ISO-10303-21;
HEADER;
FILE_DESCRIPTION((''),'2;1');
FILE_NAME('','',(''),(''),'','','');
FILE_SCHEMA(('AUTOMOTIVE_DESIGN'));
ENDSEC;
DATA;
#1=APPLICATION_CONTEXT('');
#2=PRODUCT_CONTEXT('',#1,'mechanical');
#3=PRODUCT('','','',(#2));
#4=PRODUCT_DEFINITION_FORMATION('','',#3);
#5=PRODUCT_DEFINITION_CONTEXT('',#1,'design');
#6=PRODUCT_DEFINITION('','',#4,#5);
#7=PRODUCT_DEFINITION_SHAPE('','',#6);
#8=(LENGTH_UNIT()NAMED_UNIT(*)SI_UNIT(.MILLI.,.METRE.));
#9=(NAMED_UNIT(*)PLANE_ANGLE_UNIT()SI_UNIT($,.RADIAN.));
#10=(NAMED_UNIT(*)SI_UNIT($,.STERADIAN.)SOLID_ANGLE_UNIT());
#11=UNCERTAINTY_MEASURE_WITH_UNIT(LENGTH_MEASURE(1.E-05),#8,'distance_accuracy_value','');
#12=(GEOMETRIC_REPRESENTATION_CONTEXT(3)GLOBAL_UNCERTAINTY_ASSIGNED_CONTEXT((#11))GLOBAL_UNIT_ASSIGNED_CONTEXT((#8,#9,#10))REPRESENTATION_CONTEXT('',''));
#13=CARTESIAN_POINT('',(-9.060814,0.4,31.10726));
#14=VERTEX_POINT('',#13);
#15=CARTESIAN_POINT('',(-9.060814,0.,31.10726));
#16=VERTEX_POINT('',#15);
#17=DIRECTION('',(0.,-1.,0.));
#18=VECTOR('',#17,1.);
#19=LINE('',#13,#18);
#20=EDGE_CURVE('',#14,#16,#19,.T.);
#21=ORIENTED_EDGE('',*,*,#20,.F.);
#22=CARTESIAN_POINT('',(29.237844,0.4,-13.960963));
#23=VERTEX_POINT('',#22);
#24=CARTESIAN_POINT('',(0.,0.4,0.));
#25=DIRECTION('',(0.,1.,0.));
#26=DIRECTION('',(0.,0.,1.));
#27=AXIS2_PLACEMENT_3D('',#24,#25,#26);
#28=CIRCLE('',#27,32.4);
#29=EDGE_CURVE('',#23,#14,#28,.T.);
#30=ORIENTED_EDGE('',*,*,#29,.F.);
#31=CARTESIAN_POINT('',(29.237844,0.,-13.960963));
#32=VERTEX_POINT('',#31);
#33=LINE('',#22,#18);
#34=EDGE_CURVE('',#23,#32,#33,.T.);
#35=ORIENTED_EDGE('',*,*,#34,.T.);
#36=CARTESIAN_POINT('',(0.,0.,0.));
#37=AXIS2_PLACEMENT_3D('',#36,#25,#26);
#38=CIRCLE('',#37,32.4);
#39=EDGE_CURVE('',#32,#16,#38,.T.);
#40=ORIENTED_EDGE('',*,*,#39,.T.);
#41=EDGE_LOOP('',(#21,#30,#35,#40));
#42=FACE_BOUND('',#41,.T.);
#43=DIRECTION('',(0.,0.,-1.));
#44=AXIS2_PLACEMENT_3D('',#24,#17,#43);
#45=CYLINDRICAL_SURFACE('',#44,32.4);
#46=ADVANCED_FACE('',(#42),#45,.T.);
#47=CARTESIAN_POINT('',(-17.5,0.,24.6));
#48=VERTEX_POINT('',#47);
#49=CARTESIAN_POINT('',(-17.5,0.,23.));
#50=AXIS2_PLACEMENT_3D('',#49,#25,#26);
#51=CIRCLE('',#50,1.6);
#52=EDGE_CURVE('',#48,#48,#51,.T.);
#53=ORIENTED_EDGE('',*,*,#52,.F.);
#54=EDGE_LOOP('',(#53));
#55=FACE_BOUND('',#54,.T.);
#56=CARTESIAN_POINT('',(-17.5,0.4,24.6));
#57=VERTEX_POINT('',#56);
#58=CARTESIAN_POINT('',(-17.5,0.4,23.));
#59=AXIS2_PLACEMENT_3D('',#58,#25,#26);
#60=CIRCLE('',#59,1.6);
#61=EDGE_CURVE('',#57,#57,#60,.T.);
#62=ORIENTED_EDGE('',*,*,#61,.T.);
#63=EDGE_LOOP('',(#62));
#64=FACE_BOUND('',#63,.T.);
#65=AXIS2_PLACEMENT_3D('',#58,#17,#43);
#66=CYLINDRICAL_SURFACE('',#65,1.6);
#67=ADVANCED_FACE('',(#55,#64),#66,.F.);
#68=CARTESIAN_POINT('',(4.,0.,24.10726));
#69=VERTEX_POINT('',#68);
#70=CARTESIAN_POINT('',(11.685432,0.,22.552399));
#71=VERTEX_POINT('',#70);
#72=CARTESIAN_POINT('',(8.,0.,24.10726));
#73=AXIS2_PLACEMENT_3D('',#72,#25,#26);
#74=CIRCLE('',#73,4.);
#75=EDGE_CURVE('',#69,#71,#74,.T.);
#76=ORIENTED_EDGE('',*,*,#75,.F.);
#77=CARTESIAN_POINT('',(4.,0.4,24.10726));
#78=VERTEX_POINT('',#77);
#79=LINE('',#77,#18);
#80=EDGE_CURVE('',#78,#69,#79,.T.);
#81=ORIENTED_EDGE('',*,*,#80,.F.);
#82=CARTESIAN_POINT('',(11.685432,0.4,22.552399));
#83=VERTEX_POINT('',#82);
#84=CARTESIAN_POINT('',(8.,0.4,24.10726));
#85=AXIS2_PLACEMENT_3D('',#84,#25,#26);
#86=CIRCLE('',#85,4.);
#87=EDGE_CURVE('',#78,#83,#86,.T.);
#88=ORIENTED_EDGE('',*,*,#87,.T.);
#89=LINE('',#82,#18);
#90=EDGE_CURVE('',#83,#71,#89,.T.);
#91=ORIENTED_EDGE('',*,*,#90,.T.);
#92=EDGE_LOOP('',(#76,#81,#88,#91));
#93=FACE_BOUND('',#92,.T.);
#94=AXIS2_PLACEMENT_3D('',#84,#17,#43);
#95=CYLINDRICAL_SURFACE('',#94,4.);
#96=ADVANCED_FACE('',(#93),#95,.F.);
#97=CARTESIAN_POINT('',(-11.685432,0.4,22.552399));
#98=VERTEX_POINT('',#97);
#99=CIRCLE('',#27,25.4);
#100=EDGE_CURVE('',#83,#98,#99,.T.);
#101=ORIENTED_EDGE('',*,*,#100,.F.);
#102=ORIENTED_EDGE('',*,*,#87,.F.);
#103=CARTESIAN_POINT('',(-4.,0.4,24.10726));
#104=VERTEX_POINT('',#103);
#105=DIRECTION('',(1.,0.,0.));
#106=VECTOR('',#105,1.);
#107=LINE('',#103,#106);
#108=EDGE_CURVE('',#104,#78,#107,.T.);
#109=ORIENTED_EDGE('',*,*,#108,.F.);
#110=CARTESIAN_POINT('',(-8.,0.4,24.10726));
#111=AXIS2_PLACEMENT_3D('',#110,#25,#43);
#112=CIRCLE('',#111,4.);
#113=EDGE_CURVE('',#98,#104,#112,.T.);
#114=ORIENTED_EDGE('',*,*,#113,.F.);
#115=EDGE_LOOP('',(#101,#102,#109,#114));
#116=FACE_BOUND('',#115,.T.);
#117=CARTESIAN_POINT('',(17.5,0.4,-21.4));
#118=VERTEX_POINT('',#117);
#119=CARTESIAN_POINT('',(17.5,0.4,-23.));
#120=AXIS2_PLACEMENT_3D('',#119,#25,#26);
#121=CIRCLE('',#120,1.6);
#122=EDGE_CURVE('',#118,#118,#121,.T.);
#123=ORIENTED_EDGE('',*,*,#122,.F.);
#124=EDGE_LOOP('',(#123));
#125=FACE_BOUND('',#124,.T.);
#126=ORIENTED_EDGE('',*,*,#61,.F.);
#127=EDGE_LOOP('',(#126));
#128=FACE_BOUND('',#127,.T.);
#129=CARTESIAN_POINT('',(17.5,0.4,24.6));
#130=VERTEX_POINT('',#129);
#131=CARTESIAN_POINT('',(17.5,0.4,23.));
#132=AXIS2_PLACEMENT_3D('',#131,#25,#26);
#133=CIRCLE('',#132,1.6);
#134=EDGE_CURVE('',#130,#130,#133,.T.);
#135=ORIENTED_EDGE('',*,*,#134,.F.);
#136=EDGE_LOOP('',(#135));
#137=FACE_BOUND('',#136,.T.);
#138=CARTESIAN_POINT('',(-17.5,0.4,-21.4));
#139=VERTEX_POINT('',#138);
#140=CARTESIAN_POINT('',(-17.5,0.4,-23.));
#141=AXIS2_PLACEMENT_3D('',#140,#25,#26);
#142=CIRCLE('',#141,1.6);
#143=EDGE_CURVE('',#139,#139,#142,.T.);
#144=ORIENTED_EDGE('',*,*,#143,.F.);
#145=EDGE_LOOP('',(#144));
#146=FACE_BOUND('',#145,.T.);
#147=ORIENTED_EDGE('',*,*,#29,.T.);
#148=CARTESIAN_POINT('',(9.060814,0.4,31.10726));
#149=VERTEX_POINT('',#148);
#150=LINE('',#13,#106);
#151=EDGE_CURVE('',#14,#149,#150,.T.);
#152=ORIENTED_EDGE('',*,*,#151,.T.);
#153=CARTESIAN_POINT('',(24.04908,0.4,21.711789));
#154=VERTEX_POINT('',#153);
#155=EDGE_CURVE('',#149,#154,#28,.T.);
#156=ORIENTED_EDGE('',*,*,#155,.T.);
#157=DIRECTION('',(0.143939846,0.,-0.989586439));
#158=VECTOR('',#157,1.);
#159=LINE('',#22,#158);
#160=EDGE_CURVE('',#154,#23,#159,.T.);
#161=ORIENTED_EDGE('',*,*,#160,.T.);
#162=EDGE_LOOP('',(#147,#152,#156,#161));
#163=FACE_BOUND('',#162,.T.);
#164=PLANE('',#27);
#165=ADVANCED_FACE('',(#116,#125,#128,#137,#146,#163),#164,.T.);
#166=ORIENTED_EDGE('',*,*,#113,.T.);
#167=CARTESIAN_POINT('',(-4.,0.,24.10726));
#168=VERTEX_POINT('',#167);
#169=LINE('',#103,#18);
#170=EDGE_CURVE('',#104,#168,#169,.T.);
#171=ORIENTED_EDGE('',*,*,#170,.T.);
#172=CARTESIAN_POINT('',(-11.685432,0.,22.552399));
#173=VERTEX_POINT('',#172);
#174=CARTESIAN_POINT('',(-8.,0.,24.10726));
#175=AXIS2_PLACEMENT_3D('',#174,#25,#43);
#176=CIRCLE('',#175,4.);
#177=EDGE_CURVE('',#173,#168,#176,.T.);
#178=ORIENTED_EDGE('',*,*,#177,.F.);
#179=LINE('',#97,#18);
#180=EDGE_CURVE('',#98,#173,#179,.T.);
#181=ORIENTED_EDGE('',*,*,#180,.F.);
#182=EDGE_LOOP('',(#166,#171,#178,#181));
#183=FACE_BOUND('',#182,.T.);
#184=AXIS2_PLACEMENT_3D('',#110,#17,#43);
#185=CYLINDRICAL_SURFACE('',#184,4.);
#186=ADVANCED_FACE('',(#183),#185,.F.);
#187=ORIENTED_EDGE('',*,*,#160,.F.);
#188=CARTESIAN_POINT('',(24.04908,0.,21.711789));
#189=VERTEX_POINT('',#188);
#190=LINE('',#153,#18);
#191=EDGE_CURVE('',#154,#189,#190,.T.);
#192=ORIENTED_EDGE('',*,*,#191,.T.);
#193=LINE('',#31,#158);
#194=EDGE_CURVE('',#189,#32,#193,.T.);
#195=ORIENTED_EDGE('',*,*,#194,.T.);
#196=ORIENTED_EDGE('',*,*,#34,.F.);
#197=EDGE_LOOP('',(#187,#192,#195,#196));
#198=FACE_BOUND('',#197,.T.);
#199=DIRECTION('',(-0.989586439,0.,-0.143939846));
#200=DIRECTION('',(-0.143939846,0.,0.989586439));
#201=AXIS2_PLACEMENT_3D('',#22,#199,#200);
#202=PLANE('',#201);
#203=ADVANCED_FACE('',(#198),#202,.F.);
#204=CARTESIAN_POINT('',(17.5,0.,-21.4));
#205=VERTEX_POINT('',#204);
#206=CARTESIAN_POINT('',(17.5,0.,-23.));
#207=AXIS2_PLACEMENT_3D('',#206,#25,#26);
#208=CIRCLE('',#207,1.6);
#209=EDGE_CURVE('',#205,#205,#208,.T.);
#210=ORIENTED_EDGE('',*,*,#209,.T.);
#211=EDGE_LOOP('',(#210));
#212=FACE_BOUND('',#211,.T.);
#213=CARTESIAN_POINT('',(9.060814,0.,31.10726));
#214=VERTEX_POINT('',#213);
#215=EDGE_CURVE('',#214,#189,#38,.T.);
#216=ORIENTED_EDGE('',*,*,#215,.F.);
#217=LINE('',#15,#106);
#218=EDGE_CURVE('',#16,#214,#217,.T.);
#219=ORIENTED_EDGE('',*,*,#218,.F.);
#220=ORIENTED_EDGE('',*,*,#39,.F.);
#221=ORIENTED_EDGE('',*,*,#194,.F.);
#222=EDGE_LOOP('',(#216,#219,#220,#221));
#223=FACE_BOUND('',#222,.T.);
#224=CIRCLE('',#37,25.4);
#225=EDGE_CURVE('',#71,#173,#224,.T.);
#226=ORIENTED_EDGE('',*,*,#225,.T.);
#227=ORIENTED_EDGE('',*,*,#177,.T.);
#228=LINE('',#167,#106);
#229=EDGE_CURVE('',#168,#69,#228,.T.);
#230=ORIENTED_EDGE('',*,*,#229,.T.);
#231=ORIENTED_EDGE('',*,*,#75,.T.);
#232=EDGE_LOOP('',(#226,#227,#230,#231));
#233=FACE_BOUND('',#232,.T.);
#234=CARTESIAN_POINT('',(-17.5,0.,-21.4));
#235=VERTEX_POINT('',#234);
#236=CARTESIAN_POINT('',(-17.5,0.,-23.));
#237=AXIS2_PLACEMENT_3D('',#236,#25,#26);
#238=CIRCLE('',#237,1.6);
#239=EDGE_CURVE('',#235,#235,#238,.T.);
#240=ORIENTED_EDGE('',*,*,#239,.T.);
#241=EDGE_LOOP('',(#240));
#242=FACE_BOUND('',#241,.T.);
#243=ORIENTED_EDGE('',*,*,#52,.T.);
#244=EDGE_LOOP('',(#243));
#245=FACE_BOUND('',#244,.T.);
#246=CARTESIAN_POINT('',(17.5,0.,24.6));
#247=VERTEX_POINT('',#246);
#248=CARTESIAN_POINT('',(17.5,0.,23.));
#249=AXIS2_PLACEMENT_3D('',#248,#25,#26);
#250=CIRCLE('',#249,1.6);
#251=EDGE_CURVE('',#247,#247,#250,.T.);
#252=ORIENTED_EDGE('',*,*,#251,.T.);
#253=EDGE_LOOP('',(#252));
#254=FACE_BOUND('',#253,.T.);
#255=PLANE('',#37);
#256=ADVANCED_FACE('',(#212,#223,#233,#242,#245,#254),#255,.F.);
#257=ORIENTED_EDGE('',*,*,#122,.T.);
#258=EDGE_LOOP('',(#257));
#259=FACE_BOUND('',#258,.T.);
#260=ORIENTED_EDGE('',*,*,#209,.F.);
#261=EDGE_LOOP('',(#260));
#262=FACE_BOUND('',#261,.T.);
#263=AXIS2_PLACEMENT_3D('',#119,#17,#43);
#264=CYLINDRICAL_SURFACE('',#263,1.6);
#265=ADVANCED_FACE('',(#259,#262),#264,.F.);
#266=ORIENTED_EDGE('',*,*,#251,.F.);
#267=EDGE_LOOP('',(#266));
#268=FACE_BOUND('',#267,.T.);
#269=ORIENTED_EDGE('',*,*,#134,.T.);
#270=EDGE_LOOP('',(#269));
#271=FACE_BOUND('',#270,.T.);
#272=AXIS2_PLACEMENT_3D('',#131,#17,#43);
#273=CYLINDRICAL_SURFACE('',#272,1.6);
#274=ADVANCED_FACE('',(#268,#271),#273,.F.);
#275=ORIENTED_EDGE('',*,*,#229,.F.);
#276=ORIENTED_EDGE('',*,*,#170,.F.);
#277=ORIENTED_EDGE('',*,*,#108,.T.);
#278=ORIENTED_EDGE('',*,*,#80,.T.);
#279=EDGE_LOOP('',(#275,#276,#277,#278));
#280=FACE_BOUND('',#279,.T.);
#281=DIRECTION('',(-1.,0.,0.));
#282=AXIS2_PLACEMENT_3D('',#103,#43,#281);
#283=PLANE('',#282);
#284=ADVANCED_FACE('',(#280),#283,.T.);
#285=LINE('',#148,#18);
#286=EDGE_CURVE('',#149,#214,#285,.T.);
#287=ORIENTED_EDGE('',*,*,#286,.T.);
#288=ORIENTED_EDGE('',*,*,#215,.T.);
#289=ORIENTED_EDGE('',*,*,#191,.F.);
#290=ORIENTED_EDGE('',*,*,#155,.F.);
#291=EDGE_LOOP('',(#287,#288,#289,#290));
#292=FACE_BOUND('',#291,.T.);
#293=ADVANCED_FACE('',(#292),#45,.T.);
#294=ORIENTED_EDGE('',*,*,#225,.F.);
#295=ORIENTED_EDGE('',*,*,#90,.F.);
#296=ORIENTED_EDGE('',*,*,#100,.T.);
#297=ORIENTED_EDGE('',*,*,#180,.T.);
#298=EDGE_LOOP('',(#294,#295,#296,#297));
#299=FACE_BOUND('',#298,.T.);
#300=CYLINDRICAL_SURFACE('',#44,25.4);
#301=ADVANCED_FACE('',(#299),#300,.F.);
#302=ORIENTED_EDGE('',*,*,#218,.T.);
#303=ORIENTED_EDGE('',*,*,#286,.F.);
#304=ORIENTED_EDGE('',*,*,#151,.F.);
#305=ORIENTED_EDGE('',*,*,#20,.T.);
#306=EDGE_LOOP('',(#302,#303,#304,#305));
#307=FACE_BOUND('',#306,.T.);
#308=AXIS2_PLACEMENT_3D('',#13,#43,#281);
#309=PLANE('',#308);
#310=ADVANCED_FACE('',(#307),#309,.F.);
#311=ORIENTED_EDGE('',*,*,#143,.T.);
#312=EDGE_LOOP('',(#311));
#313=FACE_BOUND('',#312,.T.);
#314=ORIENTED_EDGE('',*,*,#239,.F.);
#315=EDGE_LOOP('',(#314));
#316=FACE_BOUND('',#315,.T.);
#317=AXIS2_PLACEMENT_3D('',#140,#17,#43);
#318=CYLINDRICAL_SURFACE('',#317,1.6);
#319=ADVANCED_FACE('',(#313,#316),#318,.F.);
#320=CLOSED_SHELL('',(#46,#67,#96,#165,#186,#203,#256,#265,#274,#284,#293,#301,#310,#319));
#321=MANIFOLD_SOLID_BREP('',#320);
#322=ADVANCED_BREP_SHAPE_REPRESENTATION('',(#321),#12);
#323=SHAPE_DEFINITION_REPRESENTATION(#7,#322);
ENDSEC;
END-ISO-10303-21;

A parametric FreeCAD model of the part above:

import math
import FreeCAD as App
import Part
import Sketcher
Q = App.Units.Quantity

doc = App.newDocument("Part")
body = doc.addObject("PartDesign::Body", "Body")

# Sketch on XZ plane
sketch1 = doc.addObject("Sketcher::SketchObject", "Sketch")
body.addObject(sketch1)
sketch1.AttachmentSupport = (doc.XZ_Plane, [""])
sketch1.MapMode = "FlatFace"
sketch1.addGeometry([
    Part.LineSegment(App.Vector(24, 21.7, 0), App.Vector(29.2, -14, 0)),  # 0
    Part.ArcOfCircle(Part.Circle(App.Vector(0, 0, 0), App.Vector(0, 0, 1), 32.4), math.radians(106), math.radians(334)),  # 1
    Part.LineSegment(App.Vector(-9.1, 31.1, 0), App.Vector(9.1, 31.1, 0)),  # 2
    Part.ArcOfCircle(Part.Circle(App.Vector(0, 0, 0), App.Vector(0, 0, 1), 32.4), math.radians(42), math.radians(74)),  # 3
    Part.Circle(App.Vector(17.5, 23, 0), App.Vector(0, 0, 1), 1.6),  # 4
    Part.Circle(App.Vector(-17.5, 23, 0), App.Vector(0, 0, 1), 1.6),  # 5
    Part.ArcOfCircle(Part.Circle(App.Vector(-8, 24.1, 0), App.Vector(0, 0, 1), 4), math.radians(0), math.radians(203)),  # 6
    Part.ArcOfCircle(Part.Circle(App.Vector(0, 0, 0), App.Vector(0, 0, 1), 25.4), math.radians(117), math.radians(423)),  # 7
    Part.ArcOfCircle(Part.Circle(App.Vector(8, 24.1, 0), App.Vector(0, 0, 1), 4), math.radians(-23), math.radians(180)),  # 8
    Part.LineSegment(App.Vector(4, 24.1, 0), App.Vector(-4, 24.1, 0)),  # 9
    Part.Circle(App.Vector(17.5, -23, 0), App.Vector(0, 0, 1), 1.6),  # 10
    Part.Circle(App.Vector(-17.5, -23, 0), App.Vector(0, 0, 1), 1.6),  # 11
], False)
sketch1.addConstraint([
    Sketcher.Constraint("Coincident", 0, 2, 1, 2),
    Sketcher.Constraint("Coincident", 1, 1, 2, 1),
    Sketcher.Constraint("Coincident", 2, 2, 3, 2),
    Sketcher.Constraint("Coincident", 3, 1, 0, 1),
    Sketcher.Constraint("Coincident", 6, 2, 7, 1),
    Sketcher.Constraint("Coincident", 7, 2, 8, 1),
    Sketcher.Constraint("Coincident", 8, 2, 9, 1),
    Sketcher.Constraint("Coincident", 9, 2, 6, 1),
    Sketcher.Constraint("Horizontal", 2),
    Sketcher.Constraint("Horizontal", 9),
    Sketcher.Constraint("Coincident", 1, 3, -1, 1),
    Sketcher.Constraint("Coincident", 3, 3, -1, 1),
    Sketcher.Constraint("Coincident", 7, 3, -1, 1),
    Sketcher.Constraint("Equal", 1, 3),
    Sketcher.Constraint("Equal", 4, 5),
    Sketcher.Constraint("Equal", 6, 8),
    Sketcher.Constraint("Equal", 5, 10),
    Sketcher.Constraint("Equal", 10, 11),
    Sketcher.Constraint("Symmetric", 5, 3, 10, 3, -1, 1),
    Sketcher.Constraint("Symmetric", 4, 3, 11, 3, -1, 1),
    Sketcher.Constraint("Symmetric", 4, 3, 5, 3, -2),
    Sketcher.Constraint("Symmetric", 6, 3, 8, 3, -2),
    Sketcher.Constraint("Horizontal", 6, 3, 8, 2),
    Sketcher.Constraint("Radius", 6, Q("4 mm")),
    Sketcher.Constraint("Diameter", 4, Q("3.2 mm")),
    Sketcher.Constraint("Radius", 1, Q("32.4 mm")),
    Sketcher.Constraint("Radius", 7, Q("25.4 mm")),
    Sketcher.Constraint("DistanceX", 9, 2, 9, 1, Q("8 mm")),
    Sketcher.Constraint("DistanceY", -1, 1, 4, 3, Q("23 mm")),
    Sketcher.Constraint("DistanceX", 5, 3, 4, 3, Q("35 mm")),
    Sketcher.Constraint("DistanceY", 6, 3, 1, 1, Q("7 mm")),
    Sketcher.Constraint("DistanceX", 2, 1, 2, 2, Q("18.121629 mm")),
    Sketcher.Constraint("Distance", 0, Q("36.048142 mm")),
    Sketcher.Constraint("DistanceX", -1, 1, 3, 1, Q("24.04908 mm")),
])
pad1 = doc.addObject("PartDesign::Pad", "Pad")
body.addObject(pad1)
pad1.Profile = sketch1
pad1.Length = 0.4
pad1.Reversed = True

doc.recompute()
